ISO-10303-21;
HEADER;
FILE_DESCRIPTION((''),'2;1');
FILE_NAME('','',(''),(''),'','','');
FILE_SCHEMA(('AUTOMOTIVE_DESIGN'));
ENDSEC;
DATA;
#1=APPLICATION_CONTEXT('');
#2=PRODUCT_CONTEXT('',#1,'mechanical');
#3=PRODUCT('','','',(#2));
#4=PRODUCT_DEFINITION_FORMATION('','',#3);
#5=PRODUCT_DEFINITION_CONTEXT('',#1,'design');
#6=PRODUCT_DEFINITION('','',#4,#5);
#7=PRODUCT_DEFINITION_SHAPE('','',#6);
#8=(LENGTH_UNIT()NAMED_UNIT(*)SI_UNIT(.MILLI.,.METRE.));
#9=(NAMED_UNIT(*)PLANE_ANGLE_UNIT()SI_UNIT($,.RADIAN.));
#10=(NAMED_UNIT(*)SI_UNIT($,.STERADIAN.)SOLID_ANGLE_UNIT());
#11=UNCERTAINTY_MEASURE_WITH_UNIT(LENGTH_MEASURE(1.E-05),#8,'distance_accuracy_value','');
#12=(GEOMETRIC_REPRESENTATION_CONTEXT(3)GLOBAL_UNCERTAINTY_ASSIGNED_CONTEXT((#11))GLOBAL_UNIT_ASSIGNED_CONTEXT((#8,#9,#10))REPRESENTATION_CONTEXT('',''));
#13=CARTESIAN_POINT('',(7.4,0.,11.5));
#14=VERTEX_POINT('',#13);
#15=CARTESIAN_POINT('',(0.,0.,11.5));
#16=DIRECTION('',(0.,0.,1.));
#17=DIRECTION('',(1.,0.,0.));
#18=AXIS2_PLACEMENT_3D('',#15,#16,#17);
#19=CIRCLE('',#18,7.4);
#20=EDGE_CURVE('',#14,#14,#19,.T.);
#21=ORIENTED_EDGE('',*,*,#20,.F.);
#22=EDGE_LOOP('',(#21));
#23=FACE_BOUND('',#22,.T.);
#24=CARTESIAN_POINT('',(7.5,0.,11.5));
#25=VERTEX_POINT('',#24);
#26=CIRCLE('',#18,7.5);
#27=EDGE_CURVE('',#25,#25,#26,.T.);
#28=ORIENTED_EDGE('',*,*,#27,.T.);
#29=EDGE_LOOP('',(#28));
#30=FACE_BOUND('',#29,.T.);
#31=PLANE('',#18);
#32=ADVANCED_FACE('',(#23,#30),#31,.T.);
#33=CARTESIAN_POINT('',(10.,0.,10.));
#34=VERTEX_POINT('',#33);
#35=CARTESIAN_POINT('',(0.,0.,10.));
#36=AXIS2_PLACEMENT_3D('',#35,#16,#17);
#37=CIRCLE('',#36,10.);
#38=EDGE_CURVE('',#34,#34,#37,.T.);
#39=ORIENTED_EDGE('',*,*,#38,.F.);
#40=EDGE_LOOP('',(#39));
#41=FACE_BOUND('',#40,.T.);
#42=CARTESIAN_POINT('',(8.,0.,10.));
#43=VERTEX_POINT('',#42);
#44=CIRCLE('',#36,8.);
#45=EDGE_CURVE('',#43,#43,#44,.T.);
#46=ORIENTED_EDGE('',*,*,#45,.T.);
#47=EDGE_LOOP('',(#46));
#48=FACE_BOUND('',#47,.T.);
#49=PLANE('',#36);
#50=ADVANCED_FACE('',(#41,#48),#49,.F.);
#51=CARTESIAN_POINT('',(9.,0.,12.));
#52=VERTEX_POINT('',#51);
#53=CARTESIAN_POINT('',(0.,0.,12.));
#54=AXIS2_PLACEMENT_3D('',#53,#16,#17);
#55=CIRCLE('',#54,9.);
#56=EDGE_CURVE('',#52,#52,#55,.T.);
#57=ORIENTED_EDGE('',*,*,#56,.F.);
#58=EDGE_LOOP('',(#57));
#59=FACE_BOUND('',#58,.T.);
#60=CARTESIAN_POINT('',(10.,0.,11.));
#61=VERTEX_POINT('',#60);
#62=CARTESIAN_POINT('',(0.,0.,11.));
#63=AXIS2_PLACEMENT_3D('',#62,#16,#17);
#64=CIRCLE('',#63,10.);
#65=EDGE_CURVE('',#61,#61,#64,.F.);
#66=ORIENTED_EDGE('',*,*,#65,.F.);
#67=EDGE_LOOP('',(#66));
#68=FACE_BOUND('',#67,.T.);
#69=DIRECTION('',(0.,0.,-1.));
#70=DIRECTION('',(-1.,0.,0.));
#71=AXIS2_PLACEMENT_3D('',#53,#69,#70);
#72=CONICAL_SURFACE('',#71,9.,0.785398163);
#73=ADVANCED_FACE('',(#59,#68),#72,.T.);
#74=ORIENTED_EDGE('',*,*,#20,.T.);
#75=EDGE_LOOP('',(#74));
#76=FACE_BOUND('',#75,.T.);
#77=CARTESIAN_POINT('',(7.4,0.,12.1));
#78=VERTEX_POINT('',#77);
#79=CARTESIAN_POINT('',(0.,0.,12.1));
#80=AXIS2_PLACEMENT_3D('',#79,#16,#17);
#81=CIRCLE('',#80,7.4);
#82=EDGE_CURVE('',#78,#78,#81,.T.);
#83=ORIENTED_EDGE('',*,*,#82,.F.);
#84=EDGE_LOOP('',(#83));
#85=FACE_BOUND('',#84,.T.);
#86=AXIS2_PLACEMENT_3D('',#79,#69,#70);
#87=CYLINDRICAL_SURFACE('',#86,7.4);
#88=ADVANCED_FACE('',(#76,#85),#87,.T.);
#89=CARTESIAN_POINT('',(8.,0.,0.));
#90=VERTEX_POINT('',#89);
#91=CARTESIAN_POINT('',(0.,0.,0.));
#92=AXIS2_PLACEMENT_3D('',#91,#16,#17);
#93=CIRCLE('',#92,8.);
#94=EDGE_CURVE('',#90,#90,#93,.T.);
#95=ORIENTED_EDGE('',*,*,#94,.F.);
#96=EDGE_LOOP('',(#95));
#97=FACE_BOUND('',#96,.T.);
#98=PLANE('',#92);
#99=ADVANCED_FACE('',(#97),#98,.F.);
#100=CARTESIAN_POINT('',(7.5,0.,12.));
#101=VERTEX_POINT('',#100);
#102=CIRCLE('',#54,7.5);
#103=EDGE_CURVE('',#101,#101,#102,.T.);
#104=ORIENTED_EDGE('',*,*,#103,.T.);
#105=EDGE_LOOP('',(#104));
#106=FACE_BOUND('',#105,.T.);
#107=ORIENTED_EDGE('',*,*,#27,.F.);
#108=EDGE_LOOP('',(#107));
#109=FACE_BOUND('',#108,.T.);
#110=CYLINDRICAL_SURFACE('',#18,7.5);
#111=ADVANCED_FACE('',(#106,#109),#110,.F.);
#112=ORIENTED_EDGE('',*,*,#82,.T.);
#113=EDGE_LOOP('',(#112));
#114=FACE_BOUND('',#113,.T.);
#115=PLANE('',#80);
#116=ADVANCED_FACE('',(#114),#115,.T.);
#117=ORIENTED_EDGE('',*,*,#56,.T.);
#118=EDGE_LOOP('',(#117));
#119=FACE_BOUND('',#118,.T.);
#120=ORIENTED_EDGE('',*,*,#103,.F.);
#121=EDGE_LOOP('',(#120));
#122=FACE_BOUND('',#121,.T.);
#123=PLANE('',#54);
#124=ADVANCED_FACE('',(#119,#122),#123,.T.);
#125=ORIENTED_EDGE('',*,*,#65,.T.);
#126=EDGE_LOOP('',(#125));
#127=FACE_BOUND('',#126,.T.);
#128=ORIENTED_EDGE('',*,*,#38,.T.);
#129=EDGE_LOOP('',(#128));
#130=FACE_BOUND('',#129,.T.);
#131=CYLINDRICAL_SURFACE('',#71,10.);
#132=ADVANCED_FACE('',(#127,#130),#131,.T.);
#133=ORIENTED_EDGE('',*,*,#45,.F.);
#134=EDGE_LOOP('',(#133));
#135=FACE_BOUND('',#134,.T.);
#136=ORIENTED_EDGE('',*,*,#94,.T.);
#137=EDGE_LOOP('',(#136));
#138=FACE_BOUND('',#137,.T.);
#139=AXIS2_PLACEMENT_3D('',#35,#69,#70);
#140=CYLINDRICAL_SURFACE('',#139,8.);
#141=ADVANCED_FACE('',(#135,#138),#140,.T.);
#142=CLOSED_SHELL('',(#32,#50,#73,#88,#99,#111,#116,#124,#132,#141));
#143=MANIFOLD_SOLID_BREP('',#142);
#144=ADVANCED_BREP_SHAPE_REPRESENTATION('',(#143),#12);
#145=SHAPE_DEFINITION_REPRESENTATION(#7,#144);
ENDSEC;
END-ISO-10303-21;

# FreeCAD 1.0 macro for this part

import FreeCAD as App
import Part
import Sketcher
Q = App.Units.Quantity


def edges_at(feature, points):
    """Names of the edges that pass closest to the given points."""
    edges = feature.Shape.Edges
    near = lambda p: min(range(len(edges)), key=lambda i: edges[i].distToShape(Part.Vertex(*p))[0])
    return sorted({f"Edge{near(p) + 1}" for p in points})

doc = App.newDocument("Part")
body = doc.addObject("PartDesign::Body", "Body")

# Sketch on XY plane
sketch1 = body.newObject("Sketcher::SketchObject", "Sketch")
sketch1.AttachmentSupport = (doc.getObject("XY_Plane"), [""])
sketch1.MapMode = "FlatFace"
sketch1.addGeometry(Part.Circle(App.Vector(0, 0, 0), App.Vector(0, 0, 1), 8), False)
sketch1.addConstraint(Sketcher.Constraint("Coincident", 0, 3, -1, 1))
sketch1.addConstraint(Sketcher.Constraint("Diameter", 0, Q("16 mm")))
pad1 = body.newObject("PartDesign::Pad", "Pad")
pad1.Profile = sketch1
pad1.Length = 10

# Sketch on XY plane
sketch2 = body.newObject("Sketcher::SketchObject", "Sketch001")
sketch2.AttachmentSupport = (doc.getObject("XY_Plane"), [""])
sketch2.MapMode = "FlatFace"
sketch2.AttachmentOffset = App.Placement(App.Vector(0, 0, 10), App.Rotation())
sketch2.addGeometry(Part.Circle(App.Vector(0, 0, 0), App.Vector(0, 0, 1), 10), False)
sketch2.addConstraint(Sketcher.Constraint("Coincident", 0, 3, -1, 1))
sketch2.addConstraint(Sketcher.Constraint("Diameter", 0, Q("20 mm")))
pad2 = body.newObject("PartDesign::Pad", "Pad001")
pad2.Profile = sketch2
pad2.Length = 2
doc.recompute()

chamfer = body.newObject("PartDesign::Chamfer", "Chamfer")
chamfer.Base = (pad2, edges_at(pad2, [(-10, 0, 12)]))
chamfer.Size = 1

# Sketch on XY plane
sketch3 = body.newObject("Sketcher::SketchObject", "Sketch002")
sketch3.AttachmentSupport = (doc.getObject("XY_Plane"), [""])
sketch3.MapMode = "FlatFace"
sketch3.AttachmentOffset = App.Placement(App.Vector(0, 0, 12), App.Rotation())
sketch3.addGeometry(Part.Circle(App.Vector(0, 0, 0), App.Vector(0, 0, 1), 8), False)
sketch3.addConstraint(Sketcher.Constraint("Coincident", 0, 3, -1, 1))
sketch3.addConstraint(Sketcher.Constraint("Diameter", 0, Q("15 mm")))
pocket1 = body.newObject("PartDesign::Pocket", "Pocket")
pocket1.Profile = sketch3
pocket1.Length = 0.5

# Sketch on XY plane
sketch4 = body.newObject("Sketcher::SketchObject", "Sketch003")
sketch4.AttachmentSupport = (doc.getObject("XY_Plane"), [""])
sketch4.MapMode = "FlatFace"
sketch4.AttachmentOffset = App.Placement(App.Vector(0, 0, 11.5), App.Rotation())
sketch4.addGeometry(Part.Circle(App.Vector(0, 0, 0), App.Vector(0, 0, 1), 7), False)
sketch4.addConstraint(Sketcher.Constraint("Coincident", 0, 3, -1, 1))
sketch4.addConstraint(Sketcher.Constraint("Diameter", 0, Q("14.8 mm")))
pad3 = body.newObject("PartDesign::Pad", "Pad002")
pad3.Profile = sketch4
pad3.Length = 0.6

doc.recompute()
